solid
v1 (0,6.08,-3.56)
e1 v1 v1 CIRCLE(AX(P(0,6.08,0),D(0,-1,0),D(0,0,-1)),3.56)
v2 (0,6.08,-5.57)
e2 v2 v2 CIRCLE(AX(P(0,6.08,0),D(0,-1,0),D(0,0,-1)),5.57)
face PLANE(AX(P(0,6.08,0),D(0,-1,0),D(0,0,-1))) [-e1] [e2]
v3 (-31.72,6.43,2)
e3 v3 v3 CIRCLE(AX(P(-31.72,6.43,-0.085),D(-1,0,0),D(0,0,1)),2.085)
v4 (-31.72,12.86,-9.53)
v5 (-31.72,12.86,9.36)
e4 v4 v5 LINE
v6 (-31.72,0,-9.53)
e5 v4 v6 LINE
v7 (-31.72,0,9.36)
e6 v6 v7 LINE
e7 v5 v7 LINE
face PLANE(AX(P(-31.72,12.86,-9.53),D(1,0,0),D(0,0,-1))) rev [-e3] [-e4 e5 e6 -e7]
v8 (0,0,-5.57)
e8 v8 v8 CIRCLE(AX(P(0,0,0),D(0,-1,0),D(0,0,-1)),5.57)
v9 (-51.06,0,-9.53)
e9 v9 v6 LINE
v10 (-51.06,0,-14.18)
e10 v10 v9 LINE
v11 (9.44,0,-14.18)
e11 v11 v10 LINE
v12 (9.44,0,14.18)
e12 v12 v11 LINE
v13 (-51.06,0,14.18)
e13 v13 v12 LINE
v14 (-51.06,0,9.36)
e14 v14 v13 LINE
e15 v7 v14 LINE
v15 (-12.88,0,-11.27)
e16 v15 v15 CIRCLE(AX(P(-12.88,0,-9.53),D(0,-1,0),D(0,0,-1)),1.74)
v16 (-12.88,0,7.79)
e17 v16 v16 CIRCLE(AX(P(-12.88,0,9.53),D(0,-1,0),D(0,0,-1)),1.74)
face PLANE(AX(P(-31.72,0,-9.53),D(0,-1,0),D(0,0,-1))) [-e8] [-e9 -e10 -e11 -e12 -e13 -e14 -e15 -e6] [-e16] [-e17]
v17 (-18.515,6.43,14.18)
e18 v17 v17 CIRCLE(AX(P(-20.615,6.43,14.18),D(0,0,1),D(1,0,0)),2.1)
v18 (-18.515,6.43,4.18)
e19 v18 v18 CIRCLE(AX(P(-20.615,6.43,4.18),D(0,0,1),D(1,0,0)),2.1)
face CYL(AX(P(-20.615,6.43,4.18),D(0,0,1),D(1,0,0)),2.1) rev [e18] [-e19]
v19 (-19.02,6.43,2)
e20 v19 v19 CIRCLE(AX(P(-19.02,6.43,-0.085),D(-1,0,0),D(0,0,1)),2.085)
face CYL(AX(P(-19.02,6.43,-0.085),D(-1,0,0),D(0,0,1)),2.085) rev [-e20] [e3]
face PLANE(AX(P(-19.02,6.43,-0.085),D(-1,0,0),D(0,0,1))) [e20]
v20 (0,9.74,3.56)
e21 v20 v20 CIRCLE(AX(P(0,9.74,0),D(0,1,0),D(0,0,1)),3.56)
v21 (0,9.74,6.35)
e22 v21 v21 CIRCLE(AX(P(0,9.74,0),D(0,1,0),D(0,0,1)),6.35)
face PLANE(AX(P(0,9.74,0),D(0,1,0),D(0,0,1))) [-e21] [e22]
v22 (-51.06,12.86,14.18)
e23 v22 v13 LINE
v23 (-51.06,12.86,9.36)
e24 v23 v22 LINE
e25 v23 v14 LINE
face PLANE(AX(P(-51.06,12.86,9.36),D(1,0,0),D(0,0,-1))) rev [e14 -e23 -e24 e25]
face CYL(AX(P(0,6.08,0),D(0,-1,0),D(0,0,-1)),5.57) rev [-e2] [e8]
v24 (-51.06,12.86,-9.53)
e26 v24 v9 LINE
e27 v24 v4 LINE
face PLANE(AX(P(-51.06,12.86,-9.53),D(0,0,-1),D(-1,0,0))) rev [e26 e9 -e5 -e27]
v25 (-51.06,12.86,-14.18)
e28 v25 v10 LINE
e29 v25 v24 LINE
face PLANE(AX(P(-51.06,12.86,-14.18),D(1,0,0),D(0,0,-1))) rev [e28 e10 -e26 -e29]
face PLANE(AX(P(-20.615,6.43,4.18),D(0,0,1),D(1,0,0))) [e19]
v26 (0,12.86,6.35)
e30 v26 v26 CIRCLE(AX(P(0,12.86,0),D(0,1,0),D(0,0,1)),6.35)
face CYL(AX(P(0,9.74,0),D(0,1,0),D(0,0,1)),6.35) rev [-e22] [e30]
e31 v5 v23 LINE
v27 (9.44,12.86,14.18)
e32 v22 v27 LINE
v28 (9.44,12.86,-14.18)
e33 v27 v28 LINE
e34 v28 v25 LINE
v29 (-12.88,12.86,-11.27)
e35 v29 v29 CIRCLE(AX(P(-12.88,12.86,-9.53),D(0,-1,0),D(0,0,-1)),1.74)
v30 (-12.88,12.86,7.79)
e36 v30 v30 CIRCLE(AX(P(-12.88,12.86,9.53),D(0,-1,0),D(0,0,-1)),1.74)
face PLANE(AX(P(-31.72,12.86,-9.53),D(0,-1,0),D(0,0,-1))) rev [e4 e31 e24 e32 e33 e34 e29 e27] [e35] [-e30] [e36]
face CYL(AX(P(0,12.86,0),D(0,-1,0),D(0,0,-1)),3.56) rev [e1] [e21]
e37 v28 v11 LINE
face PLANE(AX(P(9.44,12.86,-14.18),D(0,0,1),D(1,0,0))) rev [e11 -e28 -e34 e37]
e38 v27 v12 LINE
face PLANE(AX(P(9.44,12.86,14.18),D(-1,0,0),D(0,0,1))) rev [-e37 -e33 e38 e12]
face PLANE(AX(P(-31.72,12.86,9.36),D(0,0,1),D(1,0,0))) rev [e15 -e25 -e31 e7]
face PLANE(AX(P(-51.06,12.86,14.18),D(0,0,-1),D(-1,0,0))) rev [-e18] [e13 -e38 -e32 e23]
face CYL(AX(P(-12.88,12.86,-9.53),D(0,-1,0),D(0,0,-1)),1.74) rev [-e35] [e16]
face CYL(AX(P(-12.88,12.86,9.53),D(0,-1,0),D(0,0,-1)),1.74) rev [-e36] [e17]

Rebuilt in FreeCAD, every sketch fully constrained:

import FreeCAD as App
import Part
import Sketcher

doc = App.newDocument("Part")
body = doc.addObject("PartDesign::Body", "Body")

sketch1 = doc.addObject("Sketcher::SketchObject", "Sketch")
body.addObject(sketch1)
sketch1.AttachmentSupport = (doc.XZ_Plane, [""])
sketch1.MapMode = "FlatFace"
sketch1.addGeometry(Part.LineSegment(App.Vector(-31.72, -9.53, 0), App.Vector(-31.72, 9.36, 0)), False)
sketch1.addGeometry(Part.LineSegment(App.Vector(-31.72, 9.36, 0), App.Vector(-51.06, 9.36, 0)), False)
sketch1.addGeometry(Part.LineSegment(App.Vector(-51.06, 9.36, 0), App.Vector(-51.06, 14.18, 0)), False)
sketch1.addGeometry(Part.LineSegment(App.Vector(-51.06, 14.18, 0), App.Vector(9.44, 14.18, 0)), False)
sketch1.addGeometry(Part.LineSegment(App.Vector(9.44, 14.18, 0), App.Vector(9.44, -14.18, 0)), False)
sketch1.addGeometry(Part.LineSegment(App.Vector(9.44, -14.18, 0), App.Vector(-51.06, -14.18, 0)), False)
sketch1.addGeometry(Part.LineSegment(App.Vector(-51.06, -14.18, 0), App.Vector(-51.06, -9.53, 0)), False)
sketch1.addGeometry(Part.LineSegment(App.Vector(-51.06, -9.53, 0), App.Vector(-31.72, -9.53, 0)), False)
sketch1.addGeometry(Part.Circle(App.Vector(0, 0, 0), App.Vector(0, 0, 1), 3.56), False)
sketch1.addConstraint(Sketcher.Constraint("Coincident", 0, 2, 1, 1))
sketch1.addConstraint(Sketcher.Constraint("Coincident", 1, 2, 2, 1))
sketch1.addConstraint(Sketcher.Constraint("Coincident", 2, 2, 3, 1))
sketch1.addConstraint(Sketcher.Constraint("Coincident", 3, 2, 4, 1))
sketch1.addConstraint(Sketcher.Constraint("Coincident", 4, 2, 5, 1))
sketch1.addConstraint(Sketcher.Constraint("Coincident", 5, 2, 6, 1))
sketch1.addConstraint(Sketcher.Constraint("Coincident", 6, 2, 7, 1))
sketch1.addConstraint(Sketcher.Constraint("Coincident", 7, 2, 0, 1))
sketch1.addConstraint(Sketcher.Constraint("Vertical", 0))
sketch1.addConstraint(Sketcher.Constraint("Horizontal", 1))
sketch1.addConstraint(Sketcher.Constraint("Vertical", 2))
sketch1.addConstraint(Sketcher.Constraint("Horizontal", 3))
sketch1.addConstraint(Sketcher.Constraint("Vertical", 4))
sketch1.addConstraint(Sketcher.Constraint("Horizontal", 5))
sketch1.addConstraint(Sketcher.Constraint("Vertical", 6))
sketch1.addConstraint(Sketcher.Constraint("Horizontal", 7))
sketch1.addConstraint(Sketcher.Constraint("Coincident", 8, 3, -1, 1))
sketch1.addConstraint(Sketcher.Constraint("Symmetric", 2, 2, 5, 2, -1))
sketch1.addConstraint(Sketcher.Constraint("Diameter", 8, 7.12))
sketch1.addConstraint(Sketcher.Constraint("DistanceX", 3, 1, 3, 2, 60.5))
sketch1.addConstraint(Sketcher.Constraint("DistanceX", 1, 2, 1, 1, 19.34))
sketch1.addConstraint(Sketcher.Constraint("DistanceY", 0, 1, 0, 2, 18.89))
sketch1.addConstraint(Sketcher.Constraint("DistanceY", 2, 1, 2, 2, 4.82))
sketch1.addConstraint(Sketcher.Constraint("DistanceY", 4, 2, 4, 1, 28.36))
sketch1.addConstraint(Sketcher.Constraint("DistanceX", 0, 2, -1, 1, 31.72))
pad1 = doc.addObject("PartDesign::Pad", "Pad")
body.addObject(pad1)
pad1.Profile = sketch1
pad1.Length = 12.86
pad1.Reversed = True

sketch2 = doc.addObject("Sketcher::SketchObject", "Sketch001")
body.addObject(sketch2)
sketch2.AttachmentSupport = (doc.YZ_Plane, [""])
sketch2.MapMode = "FlatFace"
sketch2.AttachmentOffset = App.Placement(App.Vector(0, 0, -31.72), App.Rotation())
sketch2.addGeometry(Part.Circle(App.Vector(6.43, -0.085, 0), App.Vector(0, 0, 1), 2.085), False)
sketch2.addConstraint(Sketcher.Constraint("Diameter", 0, 4.17))
sketch2.addConstraint(Sketcher.Constraint("DistanceX", -1, 1, 0, 3, 6.43))
sketch2.addConstraint(Sketcher.Constraint("DistanceY", 0, 3, -1, 1, 0.085))
pocket1 = doc.addObject("PartDesign::Pocket", "Pocket")
body.addObject(pocket1)
pocket1.Profile = sketch2
pocket1.Length = 12.7
pocket1.Reversed = True

sketch3 = doc.addObject("Sketcher::SketchObject", "Sketch002")
body.addObject(sketch3)
sketch3.AttachmentSupport = (doc.XZ_Plane, [""])
sketch3.MapMode = "FlatFace"
sketch3.AttachmentOffset = App.Placement(App.Vector(0, 0, -12.86), App.Rotation())
sketch3.addGeometry(Part.Circle(App.Vector(0, 0, 0), App.Vector(0, 0, 1), 6.35), False)
sketch3.addConstraint(Sketcher.Constraint("Coincident", 0, 3, -1, 1))
sketch3.addConstraint(Sketcher.Constraint("Diameter", 0, 12.7))
pocket2 = doc.addObject("PartDesign::Pocket", "Pocket001")
body.addObject(pocket2)
pocket2.Profile = sketch3
pocket2.Length = 3.12
pocket2.Reversed = True

sketch4 = doc.addObject("Sketcher::SketchObject", "Sketch003")
body.addObject(sketch4)
sketch4.AttachmentSupport = (doc.XZ_Plane, [""])
sketch4.MapMode = "FlatFace"
sketch4.addGeometry(Part.Circle(App.Vector(0, 0, 0), App.Vector(0, 0, 1), 5.57), False)
sketch4.addConstraint(Sketcher.Constraint("Coincident", 0, 3, -1, 1))
sketch4.addConstraint(Sketcher.Constraint("Diameter", 0, 11.14))
pocket3 = doc.addObject("PartDesign::Pocket", "Pocket002")
body.addObject(pocket3)
pocket3.Profile = sketch4
pocket3.Length = 6.08

sketch5 = doc.addObject("Sketcher::SketchObject", "Sketch004")
body.addObject(sketch5)
sketch5.AttachmentSupport = (doc.XZ_Plane, [""])
sketch5.MapMode = "FlatFace"
sketch5.addGeometry(Part.Circle(App.Vector(-12.88, -9.53, 0), App.Vector(0, 0, 1), 1.74), False)
sketch5.addGeometry(Part.Circle(App.Vector(-12.88, 9.53, 0), App.Vector(0, 0, 1), 1.74), False)
sketch5.addConstraint(Sketcher.Constraint("Equal", 0, 1))
sketch5.addConstraint(Sketcher.Constraint("Symmetric", 0, 3, 1, 3, -1))
sketch5.addConstraint(Sketcher.Constraint("Diameter", 0, 3.48))
sketch5.addConstraint(Sketcher.Constraint("DistanceX", 0, 3, -1, 1, 12.88))
sketch5.addConstraint(Sketcher.Constraint("DistanceY", 0, 3, -1, 1, 9.53))
pocket4 = doc.addObject("PartDesign::Pocket", "Pocket003")
body.addObject(pocket4)
pocket4.Profile = sketch5
pocket4.Type = "ThroughAll"

sketch6 = doc.addObject("Sketcher::SketchObject", "Sketch005")
body.addObject(sketch6)
sketch6.AttachmentSupport = (doc.XY_Plane, [""])
sketch6.MapMode = "FlatFace"
sketch6.AttachmentOffset = App.Placement(App.Vector(0, 0, 14.18), App.Rotation())
sketch6.addGeometry(Part.Circle(App.Vector(-20.615, 6.43, 0), App.Vector(0, 0, 1), 1.735), False)
sketch6.addConstraint(Sketcher.Constraint("Diameter", 0, 3.47))
sketch6.addConstraint(Sketcher.Constraint("DistanceY", -1, 1, 0, 3, 6.43))
sketch6.addConstraint(Sketcher.Constraint("DistanceX", 0, 3, -1, 1, 20.615))
pocket5 = doc.addObject("PartDesign::Pocket", "Pocket004")
body.addObject(pocket5)
pocket5.Profile = sketch6
pocket5.Length = 5

sketch7 = doc.addObject("Sketcher::SketchObject", "Sketch006")
body.addObject(sketch7)
sketch7.AttachmentSupport = (doc.XY_Plane, [""])
sketch7.MapMode = "FlatFace"
sketch7.AttachmentOffset = App.Placement(App.Vector(0, 0, 14.18), App.Rotation())
sketch7.addGeometry(Part.Circle(App.Vector(-20.615, 6.43, 0), App.Vector(0, 0, 1), 2.1), False)
sketch7.addConstraint(Sketcher.Constraint("Diameter", 0, 4.2))
sketch7.addConstraint(Sketcher.Constraint("DistanceY", -1, 1, 0, 3, 6.43))
sketch7.addConstraint(Sketcher.Constraint("DistanceX", 0, 3, -1, 1, 20.615))
pocket6 = doc.addObject("PartDesign::Pocket", "Pocket005")
body.addObject(pocket6)
pocket6.Profile = sketch7
pocket6.Length = 10

doc.recompute()
